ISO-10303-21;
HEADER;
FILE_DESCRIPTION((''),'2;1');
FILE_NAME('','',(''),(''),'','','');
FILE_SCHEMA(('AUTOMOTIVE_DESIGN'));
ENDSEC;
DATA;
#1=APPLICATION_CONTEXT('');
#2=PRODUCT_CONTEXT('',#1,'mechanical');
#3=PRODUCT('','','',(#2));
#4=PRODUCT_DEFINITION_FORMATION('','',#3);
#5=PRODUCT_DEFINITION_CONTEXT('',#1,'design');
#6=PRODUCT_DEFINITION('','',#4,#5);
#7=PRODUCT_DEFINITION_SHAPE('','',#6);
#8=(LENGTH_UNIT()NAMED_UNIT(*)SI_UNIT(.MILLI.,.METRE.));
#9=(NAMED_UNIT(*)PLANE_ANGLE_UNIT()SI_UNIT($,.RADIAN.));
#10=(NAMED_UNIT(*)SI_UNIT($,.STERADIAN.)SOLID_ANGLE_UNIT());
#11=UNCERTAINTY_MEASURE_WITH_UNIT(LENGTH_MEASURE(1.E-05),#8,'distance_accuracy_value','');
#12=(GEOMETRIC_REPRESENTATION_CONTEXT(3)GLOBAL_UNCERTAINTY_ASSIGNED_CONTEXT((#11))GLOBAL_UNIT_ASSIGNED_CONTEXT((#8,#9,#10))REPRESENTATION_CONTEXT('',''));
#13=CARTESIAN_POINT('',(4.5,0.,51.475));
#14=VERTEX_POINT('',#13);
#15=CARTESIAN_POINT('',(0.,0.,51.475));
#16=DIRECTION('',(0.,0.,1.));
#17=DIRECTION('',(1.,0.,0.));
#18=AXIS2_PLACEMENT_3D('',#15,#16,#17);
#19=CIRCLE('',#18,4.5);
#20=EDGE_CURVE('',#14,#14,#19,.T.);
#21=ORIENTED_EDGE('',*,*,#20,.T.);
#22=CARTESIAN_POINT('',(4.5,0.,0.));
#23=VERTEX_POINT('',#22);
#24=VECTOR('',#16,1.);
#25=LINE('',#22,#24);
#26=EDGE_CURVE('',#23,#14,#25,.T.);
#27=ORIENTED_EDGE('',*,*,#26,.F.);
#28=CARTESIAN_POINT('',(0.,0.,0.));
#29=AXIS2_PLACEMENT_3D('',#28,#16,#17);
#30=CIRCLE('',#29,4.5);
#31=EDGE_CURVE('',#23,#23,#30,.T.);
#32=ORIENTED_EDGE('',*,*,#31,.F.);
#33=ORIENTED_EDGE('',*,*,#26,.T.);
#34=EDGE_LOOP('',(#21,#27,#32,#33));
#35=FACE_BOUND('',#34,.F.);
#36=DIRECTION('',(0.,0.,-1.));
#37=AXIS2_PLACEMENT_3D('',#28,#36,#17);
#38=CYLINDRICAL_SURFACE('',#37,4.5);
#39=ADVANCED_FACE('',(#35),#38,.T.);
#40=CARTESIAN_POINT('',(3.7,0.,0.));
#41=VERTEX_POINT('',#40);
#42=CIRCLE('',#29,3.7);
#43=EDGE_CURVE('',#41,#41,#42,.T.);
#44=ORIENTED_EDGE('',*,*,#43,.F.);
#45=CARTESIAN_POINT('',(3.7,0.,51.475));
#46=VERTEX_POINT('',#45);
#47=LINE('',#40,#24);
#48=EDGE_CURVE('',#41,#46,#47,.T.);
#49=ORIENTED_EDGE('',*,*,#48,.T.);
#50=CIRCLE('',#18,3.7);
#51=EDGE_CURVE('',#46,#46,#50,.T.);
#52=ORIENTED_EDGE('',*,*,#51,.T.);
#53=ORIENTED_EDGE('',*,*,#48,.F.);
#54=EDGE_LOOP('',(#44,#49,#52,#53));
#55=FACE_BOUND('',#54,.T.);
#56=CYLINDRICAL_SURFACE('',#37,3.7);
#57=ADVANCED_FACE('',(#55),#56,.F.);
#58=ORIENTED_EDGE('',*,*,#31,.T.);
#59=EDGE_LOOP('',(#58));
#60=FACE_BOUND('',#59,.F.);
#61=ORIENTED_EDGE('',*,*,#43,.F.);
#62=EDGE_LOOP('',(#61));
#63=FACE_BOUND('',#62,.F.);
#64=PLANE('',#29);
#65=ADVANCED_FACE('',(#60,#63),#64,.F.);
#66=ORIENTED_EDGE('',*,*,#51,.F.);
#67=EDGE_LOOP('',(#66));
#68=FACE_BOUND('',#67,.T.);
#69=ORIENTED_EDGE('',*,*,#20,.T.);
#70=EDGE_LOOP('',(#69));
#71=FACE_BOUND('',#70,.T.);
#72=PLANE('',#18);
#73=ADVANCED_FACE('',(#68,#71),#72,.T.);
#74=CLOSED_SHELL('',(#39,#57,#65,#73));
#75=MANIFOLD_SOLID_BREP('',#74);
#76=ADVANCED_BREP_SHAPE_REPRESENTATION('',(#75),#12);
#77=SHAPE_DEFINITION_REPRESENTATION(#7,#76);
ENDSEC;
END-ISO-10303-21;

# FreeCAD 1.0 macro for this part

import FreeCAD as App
import Part
import Sketcher
from FreeCAD import Vector
Q = App.Units.Quantity

doc = App.newDocument("Part")
body = doc.addObject("PartDesign::Body", "Body")

# Sketch on XY plane
sketch1 = body.newObject("Sketcher::SketchObject", "Sketch")
sketch1.AttachmentSupport = (doc.getObject("XY_Plane"), [""])
sketch1.MapMode = "FlatFace"
sketch1.addGeometry([
    Part.Circle(Vector(0, 0, 0), Vector(0, 0, 1), 4.5),
    Part.Circle(Vector(0, 0, 0), Vector(0, 0, 1), 3.7),
], False)
sketch1.addConstraint([
    Sketcher.Constraint("Coincident", 0, 3, -1, 1),
    Sketcher.Constraint("Coincident", 1, 3, -1, 1),
    Sketcher.Constraint("Diameter", 0, Q("9 mm")),
    Sketcher.Constraint("Diameter", 1, Q("7.4 mm")),
])
pad1 = body.newObject("PartDesign::Pad", "Pad")
pad1.Profile = sketch1
pad1.Length = 53.975

# Sketch on XY plane
sketch2 = body.newObject("Sketcher::SketchObject", "Sketch001")
sketch2.AttachmentSupport = (doc.getObject("XY_Plane"), [""])
sketch2.MapMode = "FlatFace"
sketch2.AttachmentOffset = App.Placement(Vector(0, 0, 53.975), App.Rotation())
sketch2.addGeometry([
    Part.Circle(Vector(0, 0, 0), Vector(0, 0, 1), 4.5),
    Part.Circle(Vector(0, 0, 0), Vector(0, 0, 1), 3.7),
], False)
sketch2.addConstraint([
    Sketcher.Constraint("Coincident", 0, 3, -1, 1),
    Sketcher.Constraint("Coincident", 1, 3, -1, 1),
    Sketcher.Constraint("Diameter", 0, Q("9 mm")),
    Sketcher.Constraint("Diameter", 1, Q("7.4 mm")),
])
pocket1 = body.newObject("PartDesign::Pocket", "Pocket")
pocket1.Profile = sketch2
pocket1.Length = 2.5

doc.recompute()
